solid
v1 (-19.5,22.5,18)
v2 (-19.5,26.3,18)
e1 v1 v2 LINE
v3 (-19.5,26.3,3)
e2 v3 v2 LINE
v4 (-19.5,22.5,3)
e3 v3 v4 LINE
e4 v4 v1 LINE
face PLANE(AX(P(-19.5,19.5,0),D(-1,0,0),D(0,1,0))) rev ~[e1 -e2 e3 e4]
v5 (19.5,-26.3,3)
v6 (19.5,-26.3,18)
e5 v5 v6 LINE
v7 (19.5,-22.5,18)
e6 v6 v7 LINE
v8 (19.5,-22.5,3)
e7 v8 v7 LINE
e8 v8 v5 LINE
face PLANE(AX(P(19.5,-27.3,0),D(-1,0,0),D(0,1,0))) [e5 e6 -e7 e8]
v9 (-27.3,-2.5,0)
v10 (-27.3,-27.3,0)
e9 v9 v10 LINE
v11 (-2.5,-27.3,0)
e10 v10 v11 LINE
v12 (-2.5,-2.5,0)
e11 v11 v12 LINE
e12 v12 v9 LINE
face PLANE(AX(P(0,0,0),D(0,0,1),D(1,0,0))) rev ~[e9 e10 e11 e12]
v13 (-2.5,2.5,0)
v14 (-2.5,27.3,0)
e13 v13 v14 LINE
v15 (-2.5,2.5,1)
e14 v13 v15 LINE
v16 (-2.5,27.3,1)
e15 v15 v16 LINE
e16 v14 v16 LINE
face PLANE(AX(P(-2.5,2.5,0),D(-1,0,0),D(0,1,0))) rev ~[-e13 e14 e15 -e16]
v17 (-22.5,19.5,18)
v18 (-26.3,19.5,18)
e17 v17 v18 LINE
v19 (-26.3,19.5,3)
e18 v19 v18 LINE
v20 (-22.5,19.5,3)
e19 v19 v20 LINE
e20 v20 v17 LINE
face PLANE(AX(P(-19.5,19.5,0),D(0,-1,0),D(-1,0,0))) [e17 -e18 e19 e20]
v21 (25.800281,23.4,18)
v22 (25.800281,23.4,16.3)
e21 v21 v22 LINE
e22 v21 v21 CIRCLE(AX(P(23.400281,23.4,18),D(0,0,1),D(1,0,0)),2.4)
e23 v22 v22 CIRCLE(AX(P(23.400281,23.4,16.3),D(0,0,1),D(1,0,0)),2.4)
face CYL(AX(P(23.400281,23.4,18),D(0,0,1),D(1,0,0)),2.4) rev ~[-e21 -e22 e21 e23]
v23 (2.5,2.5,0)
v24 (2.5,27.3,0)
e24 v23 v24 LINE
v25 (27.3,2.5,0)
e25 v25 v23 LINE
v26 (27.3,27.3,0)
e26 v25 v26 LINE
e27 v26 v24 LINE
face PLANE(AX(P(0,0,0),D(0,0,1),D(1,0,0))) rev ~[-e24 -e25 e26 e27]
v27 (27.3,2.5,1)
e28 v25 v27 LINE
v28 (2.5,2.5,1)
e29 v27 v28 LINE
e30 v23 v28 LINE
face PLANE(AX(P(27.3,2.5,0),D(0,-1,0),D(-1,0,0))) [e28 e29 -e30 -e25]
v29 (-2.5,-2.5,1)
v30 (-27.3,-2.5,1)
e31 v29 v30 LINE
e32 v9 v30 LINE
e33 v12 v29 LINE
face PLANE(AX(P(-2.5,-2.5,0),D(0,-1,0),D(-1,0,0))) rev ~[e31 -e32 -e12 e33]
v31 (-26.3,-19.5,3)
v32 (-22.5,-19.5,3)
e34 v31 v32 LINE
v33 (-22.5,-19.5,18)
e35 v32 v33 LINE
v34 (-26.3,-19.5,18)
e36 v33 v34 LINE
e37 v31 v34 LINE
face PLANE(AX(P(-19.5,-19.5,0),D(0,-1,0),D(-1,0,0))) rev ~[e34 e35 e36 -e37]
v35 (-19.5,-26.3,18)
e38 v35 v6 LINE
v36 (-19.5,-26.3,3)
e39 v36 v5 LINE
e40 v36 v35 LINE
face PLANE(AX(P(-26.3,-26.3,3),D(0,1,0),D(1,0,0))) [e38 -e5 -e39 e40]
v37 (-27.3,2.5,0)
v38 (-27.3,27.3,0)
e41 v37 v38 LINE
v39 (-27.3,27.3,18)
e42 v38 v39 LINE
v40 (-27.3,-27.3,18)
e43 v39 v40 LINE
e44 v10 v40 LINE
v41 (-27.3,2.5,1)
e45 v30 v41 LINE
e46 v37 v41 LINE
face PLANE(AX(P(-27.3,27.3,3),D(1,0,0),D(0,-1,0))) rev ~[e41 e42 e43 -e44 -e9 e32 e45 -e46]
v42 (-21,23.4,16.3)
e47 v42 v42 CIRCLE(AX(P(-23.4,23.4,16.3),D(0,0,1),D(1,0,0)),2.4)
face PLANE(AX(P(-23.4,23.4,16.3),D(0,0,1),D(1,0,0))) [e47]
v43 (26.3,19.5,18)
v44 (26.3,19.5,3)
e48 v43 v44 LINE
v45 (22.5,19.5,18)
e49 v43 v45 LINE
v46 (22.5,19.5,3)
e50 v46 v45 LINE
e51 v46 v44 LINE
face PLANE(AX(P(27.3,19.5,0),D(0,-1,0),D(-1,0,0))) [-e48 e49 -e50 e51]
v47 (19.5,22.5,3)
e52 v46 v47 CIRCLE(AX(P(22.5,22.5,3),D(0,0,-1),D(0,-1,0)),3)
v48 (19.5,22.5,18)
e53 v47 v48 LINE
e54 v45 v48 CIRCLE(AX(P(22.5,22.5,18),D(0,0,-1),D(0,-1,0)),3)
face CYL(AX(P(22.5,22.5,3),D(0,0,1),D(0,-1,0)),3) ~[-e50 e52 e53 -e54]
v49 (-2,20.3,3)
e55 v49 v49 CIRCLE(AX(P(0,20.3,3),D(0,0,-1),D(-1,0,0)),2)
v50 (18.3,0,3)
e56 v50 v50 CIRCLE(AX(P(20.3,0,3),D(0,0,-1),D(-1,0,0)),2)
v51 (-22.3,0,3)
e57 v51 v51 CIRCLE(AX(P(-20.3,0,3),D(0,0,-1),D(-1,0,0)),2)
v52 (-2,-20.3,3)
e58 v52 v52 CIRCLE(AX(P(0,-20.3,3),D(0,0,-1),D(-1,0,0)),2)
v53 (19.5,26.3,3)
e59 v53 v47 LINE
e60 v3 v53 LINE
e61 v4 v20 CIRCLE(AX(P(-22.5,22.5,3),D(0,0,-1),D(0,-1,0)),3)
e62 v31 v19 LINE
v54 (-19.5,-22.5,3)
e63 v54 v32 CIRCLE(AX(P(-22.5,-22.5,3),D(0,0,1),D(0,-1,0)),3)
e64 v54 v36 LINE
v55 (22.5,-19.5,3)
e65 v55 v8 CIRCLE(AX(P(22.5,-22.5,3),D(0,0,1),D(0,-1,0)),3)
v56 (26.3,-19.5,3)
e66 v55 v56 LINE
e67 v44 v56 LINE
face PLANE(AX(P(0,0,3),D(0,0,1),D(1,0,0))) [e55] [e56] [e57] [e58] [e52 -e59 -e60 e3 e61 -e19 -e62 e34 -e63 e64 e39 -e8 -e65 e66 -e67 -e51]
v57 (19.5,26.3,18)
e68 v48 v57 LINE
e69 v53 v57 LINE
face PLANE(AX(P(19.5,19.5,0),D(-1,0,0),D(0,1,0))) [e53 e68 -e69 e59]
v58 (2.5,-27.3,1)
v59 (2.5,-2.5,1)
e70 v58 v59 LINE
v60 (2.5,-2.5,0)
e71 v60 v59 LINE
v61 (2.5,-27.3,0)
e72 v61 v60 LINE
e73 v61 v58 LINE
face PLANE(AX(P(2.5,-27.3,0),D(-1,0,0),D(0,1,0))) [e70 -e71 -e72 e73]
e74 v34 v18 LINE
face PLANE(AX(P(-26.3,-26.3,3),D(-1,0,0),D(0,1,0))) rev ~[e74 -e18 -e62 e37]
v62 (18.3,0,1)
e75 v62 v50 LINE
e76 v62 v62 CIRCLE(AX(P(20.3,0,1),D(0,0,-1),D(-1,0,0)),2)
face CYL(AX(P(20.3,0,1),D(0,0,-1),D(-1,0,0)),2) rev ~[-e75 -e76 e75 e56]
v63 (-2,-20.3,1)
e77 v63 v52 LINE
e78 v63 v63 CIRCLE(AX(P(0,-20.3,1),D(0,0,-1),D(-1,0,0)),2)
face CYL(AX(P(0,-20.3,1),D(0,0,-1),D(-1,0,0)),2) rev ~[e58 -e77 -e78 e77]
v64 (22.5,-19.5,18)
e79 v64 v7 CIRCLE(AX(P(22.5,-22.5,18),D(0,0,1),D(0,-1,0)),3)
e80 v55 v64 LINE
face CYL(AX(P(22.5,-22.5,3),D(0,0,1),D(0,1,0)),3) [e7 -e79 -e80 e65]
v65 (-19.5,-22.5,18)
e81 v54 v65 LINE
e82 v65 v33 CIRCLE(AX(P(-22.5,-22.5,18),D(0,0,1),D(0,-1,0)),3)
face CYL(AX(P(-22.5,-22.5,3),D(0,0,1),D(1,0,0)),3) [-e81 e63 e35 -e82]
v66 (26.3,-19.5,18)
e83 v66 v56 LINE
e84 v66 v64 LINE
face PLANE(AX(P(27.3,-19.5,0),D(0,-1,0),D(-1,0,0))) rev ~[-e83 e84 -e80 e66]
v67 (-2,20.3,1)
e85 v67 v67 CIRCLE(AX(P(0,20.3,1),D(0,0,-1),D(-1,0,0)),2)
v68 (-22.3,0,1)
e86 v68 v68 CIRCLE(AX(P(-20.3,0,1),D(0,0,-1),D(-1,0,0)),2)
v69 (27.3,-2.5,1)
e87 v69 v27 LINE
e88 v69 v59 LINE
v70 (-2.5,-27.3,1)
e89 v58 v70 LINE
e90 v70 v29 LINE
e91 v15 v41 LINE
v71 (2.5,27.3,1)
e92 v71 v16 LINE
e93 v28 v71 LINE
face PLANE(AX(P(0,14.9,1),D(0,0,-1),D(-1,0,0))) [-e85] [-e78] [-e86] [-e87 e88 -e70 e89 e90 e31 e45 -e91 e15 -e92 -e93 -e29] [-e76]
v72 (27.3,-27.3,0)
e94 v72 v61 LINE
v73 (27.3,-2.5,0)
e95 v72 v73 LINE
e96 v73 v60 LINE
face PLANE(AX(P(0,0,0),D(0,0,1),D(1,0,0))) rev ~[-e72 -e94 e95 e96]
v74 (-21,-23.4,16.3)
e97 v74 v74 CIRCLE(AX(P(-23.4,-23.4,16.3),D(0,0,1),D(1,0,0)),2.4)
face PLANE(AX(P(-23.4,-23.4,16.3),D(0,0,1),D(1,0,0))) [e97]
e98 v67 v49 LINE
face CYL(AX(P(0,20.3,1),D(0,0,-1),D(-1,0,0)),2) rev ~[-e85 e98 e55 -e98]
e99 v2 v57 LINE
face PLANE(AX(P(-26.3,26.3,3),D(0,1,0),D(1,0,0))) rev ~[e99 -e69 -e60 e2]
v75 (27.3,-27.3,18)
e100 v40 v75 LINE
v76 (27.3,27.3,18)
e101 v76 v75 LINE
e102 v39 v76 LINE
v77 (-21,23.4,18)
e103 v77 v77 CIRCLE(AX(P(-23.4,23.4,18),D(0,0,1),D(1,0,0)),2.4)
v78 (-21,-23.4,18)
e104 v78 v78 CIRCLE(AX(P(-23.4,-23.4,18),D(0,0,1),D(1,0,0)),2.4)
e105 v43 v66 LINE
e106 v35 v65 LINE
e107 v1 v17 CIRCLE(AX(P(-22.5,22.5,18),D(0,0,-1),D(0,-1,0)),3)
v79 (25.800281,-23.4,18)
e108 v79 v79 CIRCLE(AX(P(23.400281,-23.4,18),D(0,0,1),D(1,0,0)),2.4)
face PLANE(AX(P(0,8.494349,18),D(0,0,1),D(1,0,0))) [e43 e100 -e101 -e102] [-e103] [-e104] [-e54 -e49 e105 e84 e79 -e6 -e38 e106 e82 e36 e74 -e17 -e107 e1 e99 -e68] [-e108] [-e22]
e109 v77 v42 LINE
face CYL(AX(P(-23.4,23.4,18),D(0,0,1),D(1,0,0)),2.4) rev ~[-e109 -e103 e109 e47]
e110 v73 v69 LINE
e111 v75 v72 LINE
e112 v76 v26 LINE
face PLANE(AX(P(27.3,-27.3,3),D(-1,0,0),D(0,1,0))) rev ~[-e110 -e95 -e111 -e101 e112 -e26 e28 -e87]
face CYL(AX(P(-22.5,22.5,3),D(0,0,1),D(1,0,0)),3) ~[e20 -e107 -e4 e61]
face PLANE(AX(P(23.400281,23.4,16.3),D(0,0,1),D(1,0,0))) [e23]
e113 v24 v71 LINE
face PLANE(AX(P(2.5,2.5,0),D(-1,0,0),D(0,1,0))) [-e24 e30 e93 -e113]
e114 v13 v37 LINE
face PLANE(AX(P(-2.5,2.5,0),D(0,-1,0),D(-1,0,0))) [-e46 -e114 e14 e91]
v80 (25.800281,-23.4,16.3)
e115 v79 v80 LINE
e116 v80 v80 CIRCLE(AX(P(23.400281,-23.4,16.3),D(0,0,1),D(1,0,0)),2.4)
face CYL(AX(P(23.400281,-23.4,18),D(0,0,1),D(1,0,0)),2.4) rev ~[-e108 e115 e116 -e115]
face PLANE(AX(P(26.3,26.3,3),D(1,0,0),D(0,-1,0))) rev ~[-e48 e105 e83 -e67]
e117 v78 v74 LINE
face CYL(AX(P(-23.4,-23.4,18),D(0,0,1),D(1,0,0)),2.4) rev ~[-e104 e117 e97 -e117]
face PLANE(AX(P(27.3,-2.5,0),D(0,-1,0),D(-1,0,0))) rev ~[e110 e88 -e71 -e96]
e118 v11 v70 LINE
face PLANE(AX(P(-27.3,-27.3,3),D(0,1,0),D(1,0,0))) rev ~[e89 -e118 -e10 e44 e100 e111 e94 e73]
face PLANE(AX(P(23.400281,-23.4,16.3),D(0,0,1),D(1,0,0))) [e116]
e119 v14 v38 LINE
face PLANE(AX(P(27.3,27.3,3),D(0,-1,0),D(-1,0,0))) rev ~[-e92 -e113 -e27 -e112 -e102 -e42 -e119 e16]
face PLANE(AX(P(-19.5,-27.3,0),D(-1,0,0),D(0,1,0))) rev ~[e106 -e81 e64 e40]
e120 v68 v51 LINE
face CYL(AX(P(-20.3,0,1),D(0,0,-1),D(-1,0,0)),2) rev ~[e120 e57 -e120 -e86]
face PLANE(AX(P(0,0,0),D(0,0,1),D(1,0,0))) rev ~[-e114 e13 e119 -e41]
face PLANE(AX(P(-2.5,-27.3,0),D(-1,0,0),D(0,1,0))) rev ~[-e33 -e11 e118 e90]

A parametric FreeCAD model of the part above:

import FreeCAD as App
import Part
import Sketcher

V = App.Vector
Q = App.Units.Quantity


def edges_at(feature, points):
    """Names of the edges that pass closest to the given points."""
    edges = feature.Shape.Edges
    near = lambda p: min(range(len(edges)), key=lambda i: edges[i].distToShape(Part.Vertex(*p))[0])
    return sorted({f"Edge{near(p) + 1}" for p in points})

doc = App.newDocument("Part")
body = doc.addObject("PartDesign::Body", "Body")

sketch1 = body.newObject("Sketcher::SketchObject", "Sketch")
sketch1.AttachmentSupport = (doc.getObject("XY_Plane"), [""])
sketch1.MapMode = "FlatFace"
sketch1.addGeometry([
    Part.LineSegment(V(-27.3, 27.3, 0), V(-27.3, -27.3, 0)),
    Part.LineSegment(V(-27.3, -27.3, 0), V(27.3, -27.3, 0)),
    Part.LineSegment(V(27.3, -27.3, 0), V(27.3, 27.3, 0)),
    Part.LineSegment(V(27.3, 27.3, 0), V(-27.3, 27.3, 0)),
], False)
sketch1.addConstraint([
    Sketcher.Constraint("Coincident", 0, 2, 1, 1),
    Sketcher.Constraint("Coincident", 1, 2, 2, 1),
    Sketcher.Constraint("Coincident", 2, 2, 3, 1),
    Sketcher.Constraint("Coincident", 3, 2, 0, 1),
    Sketcher.Constraint("Vertical", 0),
    Sketcher.Constraint("Horizontal", 1),
    Sketcher.Constraint("Vertical", 2),
    Sketcher.Constraint("Horizontal", 3),
    Sketcher.Constraint("Symmetric", 0, 2, 2, 2, -1, 1),
    Sketcher.Constraint("Equal", 3, 0),
    Sketcher.Constraint("DistanceX", 1, 1, 1, 2, Q("54.6 mm")),
])
pad1 = body.newObject("PartDesign::Pad", "Pad")
pad1.Profile = sketch1
pad1.Length = 3

sketch2 = body.newObject("Sketcher::SketchObject", "Sketch001")
sketch2.AttachmentSupport = (doc.getObject("XY_Plane"), [""])
sketch2.MapMode = "FlatFace"
sketch2.addGeometry([
    Part.LineSegment(V(2.5, 27.3, 0), V(2.5, 2.5, 0)),
    Part.LineSegment(V(2.5, 2.5, 0), V(27.3, 2.5, 0)),
    Part.LineSegment(V(27.3, 2.5, 0), V(27.3, -2.5, 0)),
    Part.LineSegment(V(27.3, -2.5, 0), V(2.5, -2.5, 0)),
    Part.LineSegment(V(2.5, -2.5, 0), V(2.5, -27.3, 0)),
    Part.LineSegment(V(2.5, -27.3, 0), V(-2.5, -27.3, 0)),
    Part.LineSegment(V(-2.5, -27.3, 0), V(-2.5, -2.5, 0)),
    Part.LineSegment(V(-2.5, -2.5, 0), V(-27.3, -2.5, 0)),
    Part.LineSegment(V(-27.3, -2.5, 0), V(-27.3, 2.5, 0)),
    Part.LineSegment(V(-27.3, 2.5, 0), V(-2.5, 2.5, 0)),
    Part.LineSegment(V(-2.5, 2.5, 0), V(-2.5, 27.3, 0)),
    Part.LineSegment(V(-2.5, 27.3, 0), V(2.5, 27.3, 0)),
], False)
sketch2.addConstraint([
    Sketcher.Constraint("Coincident", 0, 2, 1, 1),
    Sketcher.Constraint("Coincident", 1, 2, 2, 1),
    Sketcher.Constraint("Coincident", 2, 2, 3, 1),
    Sketcher.Constraint("Coincident", 3, 2, 4, 1),
    Sketcher.Constraint("Coincident", 4, 2, 5, 1),
    Sketcher.Constraint("Coincident", 5, 2, 6, 1),
    Sketcher.Constraint("Coincident", 6, 2, 7, 1),
    Sketcher.Constraint("Coincident", 7, 2, 8, 1),
    Sketcher.Constraint("Coincident", 8, 2, 9, 1),
    Sketcher.Constraint("Coincident", 9, 2, 10, 1),
    Sketcher.Constraint("Coincident", 10, 2, 11, 1),
    Sketcher.Constraint("Coincident", 11, 2, 0, 1),
    Sketcher.Constraint("Vertical", 0),
    Sketcher.Constraint("Horizontal", 1),
    Sketcher.Constraint("Vertical", 2),
    Sketcher.Constraint("Horizontal", 3),
    Sketcher.Constraint("Vertical", 4),
    Sketcher.Constraint("Horizontal", 5),
    Sketcher.Constraint("Vertical", 6),
    Sketcher.Constraint("Horizontal", 7),
    Sketcher.Constraint("Vertical", 8),
    Sketcher.Constraint("Horizontal", 9),
    Sketcher.Constraint("Vertical", 10),
    Sketcher.Constraint("Horizontal", 11),
    Sketcher.Constraint("Symmetric", 0, 2, 6, 2, -1, 1),
    Sketcher.Constraint("Symmetric", 2, 2, 8, 2, -1, 1),
    Sketcher.Constraint("Symmetric", 4, 2, 10, 2, -1, 1),
    Sketcher.Constraint("Symmetric", 3, 2, 6, 2, -2),
    Sketcher.Constraint("Equal", 9, 0),
    Sketcher.Constraint("Equal", 11, 2),
    Sketcher.Constraint("DistanceX", 5, 2, 5, 1, Q("5 mm")),
    Sketcher.Constraint("DistanceX", 1, 1, 1, 2, Q("24.8 mm")),
])
pocket1 = body.newObject("PartDesign::Pocket", "Pocket")
pocket1.Profile = sketch2
pocket1.Length = 1
pocket1.Reversed = True

sketch3 = body.newObject("Sketcher::SketchObject", "Sketch002")
sketch3.AttachmentSupport = (doc.getObject("XY_Plane"), [""])
sketch3.MapMode = "FlatFace"
sketch3.AttachmentOffset = App.Placement(V(0, 0, 3), App.Rotation())
sketch3.addGeometry([
    Part.LineSegment(V(27.3, 27.3, 0), V(-27.3, 27.3, 0)),
    Part.LineSegment(V(-27.3, 27.3, 0), V(-27.3, -27.3, 0)),
    Part.LineSegment(V(-27.3, -27.3, 0), V(27.3, -27.3, 0)),
    Part.LineSegment(V(27.3, -27.3, 0), V(27.3, 27.3, 0)),
    Part.LineSegment(V(-26.3, -26.3, 0), V(-26.3, 26.3, 0)),
    Part.LineSegment(V(-26.3, 26.3, 0), V(26.3, 26.3, 0)),
    Part.LineSegment(V(26.3, 26.3, 0), V(26.3, -26.3, 0)),
    Part.LineSegment(V(26.3, -26.3, 0), V(-26.3, -26.3, 0)),
], False)
sketch3.addConstraint([
    Sketcher.Constraint("Coincident", 0, 2, 1, 1),
    Sketcher.Constraint("Coincident", 1, 2, 2, 1),
    Sketcher.Constraint("Coincident", 2, 2, 3, 1),
    Sketcher.Constraint("Coincident", 3, 2, 0, 1),
    Sketcher.Constraint("Coincident", 4, 2, 5, 1),
    Sketcher.Constraint("Coincident", 5, 2, 6, 1),
    Sketcher.Constraint("Coincident", 6, 2, 7, 1),
    Sketcher.Constraint("Coincident", 7, 2, 4, 1),
    Sketcher.Constraint("Horizontal", 0),
    Sketcher.Constraint("Vertical", 1),
    Sketcher.Constraint("Horizontal", 2),
    Sketcher.Constraint("Vertical", 3),
    Sketcher.Constraint("Vertical", 4),
    Sketcher.Constraint("Horizontal", 5),
    Sketcher.Constraint("Vertical", 6),
    Sketcher.Constraint("Horizontal", 7),
    Sketcher.Constraint("Symmetric", 0, 2, 2, 2, -1, 1),
    Sketcher.Constraint("Symmetric", 4, 2, 6, 2, -1, 1),
    Sketcher.Constraint("Equal", 2, 1),
    Sketcher.Constraint("Equal", 7, 4),
    Sketcher.Constraint("DistanceX", 0, 2, 0, 1, Q("54.6 mm")),
    Sketcher.Constraint("DistanceX", 5, 1, 5, 2, Q("52.6 mm")),
])
pad2 = body.newObject("PartDesign::Pad", "Pad001")
pad2.Profile = sketch3
pad2.Length = 15

sketch4 = body.newObject("Sketcher::SketchObject", "Sketch003")
sketch4.AttachmentSupport = (doc.getObject("XY_Plane"), [""])
sketch4.MapMode = "FlatFace"
sketch4.AttachmentOffset = App.Placement(V(0, 0, 1), App.Rotation())
sketch4.addGeometry([
    Part.Circle(V(20.3, 0, 0), V(0, 0, 1), 2),
    Part.Circle(V(-20.3, 0, 0), V(0, 0, 1), 2),
    Part.Circle(V(0, 20.3, 0), V(0, 0, 1), 2),
    Part.Circle(V(0, -20.3, 0), V(0, 0, 1), 2),
], False)
sketch4.addConstraint([
    Sketcher.Constraint("Equal", 0, 1),
    Sketcher.Constraint("Equal", 1, 2),
    Sketcher.Constraint("Equal", 2, 3),
    Sketcher.Constraint("Symmetric", 0, 3, 1, 3, -1, 1),
    Sketcher.Constraint("Symmetric", 2, 3, 3, 3, -1, 1),
    Sketcher.Constraint("PointOnObject", 0, 3, -1),
    Sketcher.Constraint("PointOnObject", 2, 3, -2),
    Sketcher.Constraint("Diameter", 0, Q("4 mm")),
    Sketcher.Constraint("DistanceX", -1, 1, 0, 3, Q("20.3 mm")),
    Sketcher.Constraint("DistanceY", -1, 1, 2, 3, Q("20.3 mm")),
])
pocket2 = body.newObject("PartDesign::Pocket", "Pocket001")
pocket2.Profile = sketch4
pocket2.Length = 7
pocket2.Reversed = True

sketch5 = body.newObject("Sketcher::SketchObject", "Sketch004")
sketch5.AttachmentSupport = (doc.getObject("XY_Plane"), [""])
sketch5.MapMode = "FlatFace"
sketch5.addGeometry([
    Part.LineSegment(V(27.3, 27.3, 0), V(27.3, 19.5, 0)),
    Part.LineSegment(V(27.3, 19.5, 0), V(19.5, 19.5, 0)),
    Part.LineSegment(V(19.5, 19.5, 0), V(19.5, 27.3, 0)),
    Part.LineSegment(V(19.5, 27.3, 0), V(27.3, 27.3, 0)),
    Part.LineSegment(V(-19.5, 27.3, 0), V(-19.5, 19.5, 0)),
    Part.LineSegment(V(-19.5, 19.5, 0), V(-27.3, 19.5, 0)),
    Part.LineSegment(V(-27.3, 19.5, 0), V(-27.3, 27.3, 0)),
    Part.LineSegment(V(-27.3, 27.3, 0), V(-19.5, 27.3, 0)),
    Part.LineSegment(V(27.3, -19.5, 0), V(27.3, -27.3, 0)),
    Part.LineSegment(V(27.3, -27.3, 0), V(19.5, -27.3, 0)),
    Part.LineSegment(V(19.5, -27.3, 0), V(19.5, -19.5, 0)),
    Part.LineSegment(V(19.5, -19.5, 0), V(27.3, -19.5, 0)),
    Part.LineSegment(V(-19.5, -19.5, 0), V(-19.5, -27.3, 0)),
    Part.LineSegment(V(-19.5, -27.3, 0), V(-27.3, -27.3, 0)),
    Part.LineSegment(V(-27.3, -27.3, 0), V(-27.3, -19.5, 0)),
    Part.LineSegment(V(-27.3, -19.5, 0), V(-19.5, -19.5, 0)),
], False)
sketch5.addConstraint([
    Sketcher.Constraint("Coincident", 0, 2, 1, 1),
    Sketcher.Constraint("Coincident", 1, 2, 2, 1),
    Sketcher.Constraint("Coincident", 2, 2, 3, 1),
    Sketcher.Constraint("Coincident", 3, 2, 0, 1),
    Sketcher.Constraint("Coincident", 4, 2, 5, 1),
    Sketcher.Constraint("Coincident", 5, 2, 6, 1),
    Sketcher.Constraint("Coincident", 6, 2, 7, 1),
    Sketcher.Constraint("Coincident", 7, 2, 4, 1),
    Sketcher.Constraint("Coincident", 8, 2, 9, 1),
    Sketcher.Constraint("Coincident", 9, 2, 10, 1),
    Sketcher.Constraint("Coincident", 10, 2, 11, 1),
    Sketcher.Constraint("Coincident", 11, 2, 8, 1),
    Sketcher.Constraint("Coincident", 12, 2, 13, 1),
    Sketcher.Constraint("Coincident", 13, 2, 14, 1),
    Sketcher.Constraint("Coincident", 14, 2, 15, 1),
    Sketcher.Constraint("Coincident", 15, 2, 12, 1),
    Sketcher.Constraint("Vertical", 0),
    Sketcher.Constraint("Horizontal", 1),
    Sketcher.Constraint("Vertical", 2),
    Sketcher.Constraint("Horizontal", 3),
    Sketcher.Constraint("Vertical", 4),
    Sketcher.Constraint("Horizontal", 5),
    Sketcher.Constraint("Vertical", 6),
    Sketcher.Constraint("Horizontal", 7),
    Sketcher.Constraint("Vertical", 8),
    Sketcher.Constraint("Horizontal", 9),
    Sketcher.Constraint("Vertical", 10),
    Sketcher.Constraint("Horizontal", 11),
    Sketcher.Constraint("Vertical", 12),
    Sketcher.Constraint("Horizontal", 13),
    Sketcher.Constraint("Vertical", 14),
    Sketcher.Constraint("Horizontal", 15),
    Sketcher.Constraint("Symmetric", 6, 2, 8, 2, -1, 1),
    Sketcher.Constraint("Symmetric", 4, 2, 10, 2, -1, 1),
    Sketcher.Constraint("Symmetric", 2, 2, 12, 2, -1, 1),
    Sketcher.Constraint("Symmetric", 0, 2, 14, 2, -1, 1),
    Sketcher.Constraint("Symmetric", 1, 2, 4, 2, -2),
    Sketcher.Constraint("Symmetric", 3, 2, 6, 2, -2),
    Sketcher.Constraint("Equal", 15, 0),
    Sketcher.Constraint("DistanceX", 1, 2, 1, 1, Q("7.8 mm")),
    Sketcher.Constraint("DistanceX", 4, 2, 1, 2, Q("39 mm")),
    Sketcher.Constraint("DistanceY", 10, 2, 1, 2, Q("39 mm")),
])
pad3 = body.newObject("PartDesign::Pad", "Pad002")
pad3.Profile = sketch5
pad3.Length = 18

sketch6 = body.newObject("Sketcher::SketchObject", "Sketch005")
sketch6.AttachmentSupport = (doc.getObject("XY_Plane"), [""])
sketch6.MapMode = "FlatFace"
sketch6.AttachmentOffset = App.Placement(V(0, 0, 18), App.Rotation())
sketch6.addGeometry([
    Part.Circle(V(-23.4, -23.4, 0), V(0, 0, 1), 2.4),
    Part.Circle(V(-23.4, 23.4, 0), V(0, 0, 1), 2.4),
    Part.Circle(V(23.400281, 23.4, 0), V(0, 0, 1), 2.4),
    Part.Circle(V(23.400281, -23.4, 0), V(0, 0, 1), 2.4),
], False)
sketch6.addConstraint([
    Sketcher.Constraint("Equal", 0, 1),
    Sketcher.Constraint("Equal", 1, 2),
    Sketcher.Constraint("Equal", 2, 3),
    Sketcher.Constraint("Symmetric", 0, 3, 1, 3, -1),
    Sketcher.Constraint("Symmetric", 2, 3, 3, 3, -1),
    Sketcher.Constraint("Horizontal", 1, 3, 2, 3),
    Sketcher.Constraint("Diameter", 0, Q("4.8 mm")),
    Sketcher.Constraint("DistanceX", 0, 3, -1, 1, Q("23.4 mm")),
    Sketcher.Constraint("DistanceY", 0, 3, -1, 1, Q("23.4 mm")),
    Sketcher.Constraint("DistanceX", -1, 1, 2, 3, Q("23.400281 mm")),
])
pocket3 = body.newObject("PartDesign::Pocket", "Pocket002")
pocket3.Profile = sketch6
pocket3.Length = 1.7
doc.recompute()

fillet = body.newObject("PartDesign::Fillet", "Fillet")
fillet.Base = (pocket3, edges_at(pocket3, [
    (19.5, 19.5, 10.5),
    (-19.5, 19.5, 10.5),
    (19.5, -19.5, 10.5),
    (-19.5, -19.5, 10.5),
]))
fillet.Radius = 3

doc.recompute()
